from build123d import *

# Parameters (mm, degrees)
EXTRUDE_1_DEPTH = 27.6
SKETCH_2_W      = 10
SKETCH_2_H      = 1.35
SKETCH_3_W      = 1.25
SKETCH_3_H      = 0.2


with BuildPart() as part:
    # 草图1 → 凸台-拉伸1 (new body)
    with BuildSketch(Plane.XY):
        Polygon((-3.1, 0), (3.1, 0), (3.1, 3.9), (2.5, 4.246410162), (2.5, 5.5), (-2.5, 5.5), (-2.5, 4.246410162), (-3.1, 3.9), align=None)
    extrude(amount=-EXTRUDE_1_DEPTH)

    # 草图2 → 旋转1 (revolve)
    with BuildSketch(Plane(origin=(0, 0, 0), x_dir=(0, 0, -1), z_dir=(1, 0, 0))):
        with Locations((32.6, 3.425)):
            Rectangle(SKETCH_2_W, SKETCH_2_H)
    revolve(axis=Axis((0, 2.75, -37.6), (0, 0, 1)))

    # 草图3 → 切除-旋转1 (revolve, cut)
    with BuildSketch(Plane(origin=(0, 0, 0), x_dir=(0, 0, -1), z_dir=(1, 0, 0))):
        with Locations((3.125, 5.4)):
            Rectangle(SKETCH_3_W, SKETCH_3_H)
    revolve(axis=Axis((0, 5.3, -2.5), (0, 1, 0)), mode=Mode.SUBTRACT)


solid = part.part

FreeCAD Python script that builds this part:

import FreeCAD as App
import Part
import Sketcher
Q = App.Units.Quantity

doc = App.newDocument("Part")
body = doc.addObject("PartDesign::Body", "Body")

# Sketch on XY plane
sketch1 = body.newObject("Sketcher::SketchObject", "Sketch")
sketch1.AttachmentSupport = (doc.getObject("XY_Plane"), [""])
sketch1.MapMode = "FlatFace"
sketch1.addGeometry(Part.LineSegment(App.Vector(-3.1, 0, 0), App.Vector(3.1, 0, 0)), False)
sketch1.addGeometry(Part.LineSegment(App.Vector(3.1, 0, 0), App.Vector(3.1, 3.9, 0)), False)
sketch1.addGeometry(Part.LineSegment(App.Vector(3.1, 3.9, 0), App.Vector(2.5, 4.24641, 0)), False)
sketch1.addGeometry(Part.LineSegment(App.Vector(2.5, 4.24641, 0), App.Vector(2.5, 5.5, 0)), False)
sketch1.addGeometry(Part.LineSegment(App.Vector(2.5, 5.5, 0), App.Vector(-2.5, 5.5, 0)), False)
sketch1.addGeometry(Part.LineSegment(App.Vector(-2.5, 5.5, 0), App.Vector(-2.5, 4.24641, 0)), False)
sketch1.addGeometry(Part.LineSegment(App.Vector(-2.5, 4.24641, 0), App.Vector(-3.1, 3.9, 0)), False)
sketch1.addGeometry(Part.LineSegment(App.Vector(-3.1, 3.9, 0), App.Vector(-3.1, 0, 0)), False)
sketch1.addConstraint(Sketcher.Constraint("Coincident", 0, 2, 1, 1))
sketch1.addConstraint(Sketcher.Constraint("Coincident", 1, 2, 2, 1))
sketch1.addConstraint(Sketcher.Constraint("Coincident", 2, 2, 3, 1))
sketch1.addConstraint(Sketcher.Constraint("Coincident", 3, 2, 4, 1))
sketch1.addConstraint(Sketcher.Constraint("Coincident", 4, 2, 5, 1))
sketch1.addConstraint(Sketcher.Constraint("Coincident", 5, 2, 6, 1))
sketch1.addConstraint(Sketcher.Constraint("Coincident", 6, 2, 7, 1))
sketch1.addConstraint(Sketcher.Constraint("Coincident", 7, 2, 0, 1))
sketch1.addConstraint(Sketcher.Constraint("Horizontal", 0))
sketch1.addConstraint(Sketcher.Constraint("Vertical", 1))
sketch1.addConstraint(Sketcher.Constraint("Vertical", 3))
sketch1.addConstraint(Sketcher.Constraint("Horizontal", 4))
sketch1.addConstraint(Sketcher.Constraint("Vertical", 5))
sketch1.addConstraint(Sketcher.Constraint("Vertical", 7))
sketch1.addConstraint(Sketcher.Constraint("Symmetric", 0, 2, 7, 2, -1, 1))
sketch1.addConstraint(Sketcher.Constraint("Symmetric", 2, 2, 5, 2, -2))
sketch1.addConstraint(Sketcher.Constraint("Horizontal", 1, 2, 6, 2))
sketch1.addConstraint(Sketcher.Constraint("DistanceX", 4, 2, 4, 1, Q("5 mm")))
sketch1.addConstraint(Sketcher.Constraint("Angle", 2, Q("150 deg")))
sketch1.addConstraint(Sketcher.Constraint("DistanceX", 0, 1, 0, 2, Q("6.2 mm")))
sketch1.addConstraint(Sketcher.Constraint("DistanceY", 1, 1, 1, 2, Q("3.9 mm")))
sketch1.addConstraint(Sketcher.Constraint("DistanceY", -1, 1, 3, 2, Q("5.5 mm")))
pad1 = body.newObject("PartDesign::Pad", "Pad")
pad1.Profile = sketch1
pad1.Length = 27.6
pad1.Reversed = True

# Sketch on YZ plane
sketch2 = body.newObject("Sketcher::SketchObject", "Sketch001")
sketch2.AttachmentSupport = (doc.getObject("YZ_Plane"), [""])
sketch2.MapMode = "FlatFace"
sketch2.addGeometry(Part.LineSegment(App.Vector(4.1, -27.6, 0), App.Vector(2.75, -27.6, 0)), False)
sketch2.addGeometry(Part.LineSegment(App.Vector(2.75, -27.6, 0), App.Vector(2.75, -37.6, 0)), False)
sketch2.addGeometry(Part.LineSegment(App.Vector(2.75, -37.6, 0), App.Vector(4.1, -37.6, 0)), False)
sketch2.addGeometry(Part.LineSegment(App.Vector(4.1, -37.6, 0), App.Vector(4.1, -27.6, 0)), False)
sketch2.addGeometry(Part.LineSegment(App.Vector(2.75, -37.6, 0), App.Vector(2.75, -27.6, 0)), True)  # axis
sketch2.addConstraint(Sketcher.Constraint("Coincident", 0, 2, 1, 1))
sketch2.addConstraint(Sketcher.Constraint("Coincident", 1, 2, 2, 1))
sketch2.addConstraint(Sketcher.Constraint("Coincident", 2, 2, 3, 1))
sketch2.addConstraint(Sketcher.Constraint("Coincident", 3, 2, 0, 1))
sketch2.addConstraint(Sketcher.Constraint("Horizontal", 0))
sketch2.addConstraint(Sketcher.Constraint("Vertical", 1))
sketch2.addConstraint(Sketcher.Constraint("Horizontal", 2))
sketch2.addConstraint(Sketcher.Constraint("Vertical", 3))
sketch2.addConstraint(Sketcher.Constraint("Vertical", 4))
sketch2.addConstraint(Sketcher.Constraint("Coincident", 4, 1, 1, 2))
sketch2.addConstraint(Sketcher.Constraint("Horizontal", 3, 2, 4, 2))
sketch2.addConstraint(Sketcher.Constraint("DistanceY", 1, 2, 1, 1, Q("10 mm")))
sketch2.addConstraint(Sketcher.Constraint("DistanceX", 0, 2, 0, 1, Q("1.35 mm")))
sketch2.addConstraint(Sketcher.Constraint("DistanceY", 0, 2, -1, 1, Q("27.6 mm")))
sketch2.addConstraint(Sketcher.Constraint("DistanceX", -1, 1, 2, 2, Q("4.1 mm")))
revolution = body.newObject("PartDesign::Revolution", "Revolution")
revolution.Profile = sketch2
revolution.ReferenceAxis = (sketch2, ["Axis0"])
revolution.Angle = 360

# Sketch on YZ plane
sketch3 = body.newObject("Sketcher::SketchObject", "Sketch002")
sketch3.AttachmentSupport = (doc.getObject("YZ_Plane"), [""])
sketch3.MapMode = "FlatFace"
sketch3.addGeometry(Part.LineSegment(App.Vector(5.5, -2.5, 0), App.Vector(5.3, -2.5, 0)), False)
sketch3.addGeometry(Part.LineSegment(App.Vector(5.3, -2.5, 0), App.Vector(5.3, -3.75, 0)), False)
sketch3.addGeometry(Part.LineSegment(App.Vector(5.3, -3.75, 0), App.Vector(5.5, -3.75, 0)), False)
sketch3.addGeometry(Part.LineSegment(App.Vector(5.5, -3.75, 0), App.Vector(5.5, -2.5, 0)), False)
sketch3.addGeometry(Part.LineSegment(App.Vector(5.3, -2.5, 0), App.Vector(5.5, -2.5, 0)), True)  # axis
sketch3.addConstraint(Sketcher.Constraint("Coincident", 0, 2, 1, 1))
sketch3.addConstraint(Sketcher.Constraint("Coincident", 1, 2, 2, 1))
sketch3.addConstraint(Sketcher.Constraint("Coincident", 2, 2, 3, 1))
sketch3.addConstraint(Sketcher.Constraint("Coincident", 3, 2, 0, 1))
sketch3.addConstraint(Sketcher.Constraint("Horizontal", 0))
sketch3.addConstraint(Sketcher.Constraint("Vertical", 1))
sketch3.addConstraint(Sketcher.Constraint("Horizontal", 2))
sketch3.addConstraint(Sketcher.Constraint("Vertical", 3))
sketch3.addConstraint(Sketcher.Constraint("Horizontal", 4))
sketch3.addConstraint(Sketcher.Constraint("Coincident", 4, 1, 0, 2))
sketch3.addConstraint(Sketcher.Constraint("Vertical", 2, 2, 4, 2))
sketch3.addConstraint(Sketcher.Constraint("DistanceX", 0, 2, 0, 1, Q("0.2 mm")))
sketch3.addConstraint(Sketcher.Constraint("DistanceY", 1, 2, 1, 1, Q("1.25 mm")))
sketch3.addConstraint(Sketcher.Constraint("DistanceX", -1, 1, 0, 2, Q("5.3 mm")))
sketch3.addConstraint(Sketcher.Constraint("DistanceY", 0, 2, -1, 1, Q("2.5 mm")))
groove = body.newObject("PartDesign::Groove", "Groove")
groove.Profile = sketch3
groove.ReferenceAxis = (sketch3, ["Axis0"])
groove.Angle = 360

doc.recompute()
